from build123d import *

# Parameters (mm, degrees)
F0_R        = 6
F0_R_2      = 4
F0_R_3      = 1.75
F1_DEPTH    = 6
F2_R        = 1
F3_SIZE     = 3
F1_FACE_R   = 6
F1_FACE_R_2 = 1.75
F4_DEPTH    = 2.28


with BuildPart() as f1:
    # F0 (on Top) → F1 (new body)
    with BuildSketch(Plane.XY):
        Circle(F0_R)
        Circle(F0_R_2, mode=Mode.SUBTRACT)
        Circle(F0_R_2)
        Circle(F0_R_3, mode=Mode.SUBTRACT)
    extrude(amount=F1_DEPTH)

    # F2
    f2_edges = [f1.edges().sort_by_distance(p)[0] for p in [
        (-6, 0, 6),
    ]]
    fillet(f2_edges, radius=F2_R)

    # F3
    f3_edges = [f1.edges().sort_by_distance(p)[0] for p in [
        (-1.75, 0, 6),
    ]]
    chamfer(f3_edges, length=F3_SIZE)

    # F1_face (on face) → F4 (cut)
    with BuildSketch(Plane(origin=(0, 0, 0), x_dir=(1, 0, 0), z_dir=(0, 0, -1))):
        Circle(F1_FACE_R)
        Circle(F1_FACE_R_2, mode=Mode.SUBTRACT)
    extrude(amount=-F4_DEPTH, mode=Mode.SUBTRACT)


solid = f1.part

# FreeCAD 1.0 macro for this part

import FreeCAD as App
import Part
import Sketcher
from FreeCAD import Vector
Q = App.Units.Quantity


def edges_at(feature, points):
    """Names of the edges that pass closest to the given points."""
    edges = feature.Shape.Edges
    near = lambda p: min(range(len(edges)), key=lambda i: edges[i].distToShape(Part.Vertex(*p))[0])
    return sorted({f"Edge{near(p) + 1}" for p in points})

doc = App.newDocument("Part")
body = doc.addObject("PartDesign::Body", "Body")

sketch1 = body.newObject("Sketcher::SketchObject", "Sketch")
sketch1.AttachmentSupport = (doc.getObject("XY_Plane"), [""])
sketch1.MapMode = "FlatFace"
sketch1.addGeometry(Part.Circle(Vector(0, 0, 0), Vector(0, 0, 1), 6), False)
sketch1.addGeometry(Part.Circle(Vector(0, 0, 0), Vector(0, 0, 1), 1.8), False)
sketch1.addConstraint(Sketcher.Constraint("Coincident", 0, 3, -1, 1))
sketch1.addConstraint(Sketcher.Constraint("Coincident", 1, 3, -1, 1))
sketch1.addConstraint(Sketcher.Constraint("Diameter", 0, Q("12 mm")))
sketch1.addConstraint(Sketcher.Constraint("Diameter", 1, Q("3.5 mm")))
pad1 = body.newObject("PartDesign::Pad", "Pad")
pad1.Profile = sketch1
pad1.Length = 6
doc.recompute()

fillet = body.newObject("PartDesign::Fillet", "Fillet")
fillet.Base = (pad1, edges_at(pad1, [(-6, 0, 6)]))
fillet.Radius = 1
doc.recompute()

chamfer = body.newObject("PartDesign::Chamfer", "Chamfer")
chamfer.Base = (fillet, edges_at(fillet, [(-1.75, 0, 6)]))
chamfer.Size = 3

sketch2 = body.newObject("Sketcher::SketchObject", "Sketch001")
sketch2.AttachmentSupport = (doc.getObject("XY_Plane"), [""])
sketch2.MapMode = "FlatFace"
sketch2.addGeometry(Part.Circle(Vector(0, 0, 0), Vector(0, 0, 1), 6), False)
sketch2.addGeometry(Part.Circle(Vector(0, 0, 0), Vector(0, 0, 1), 1.8), False)
sketch2.addConstraint(Sketcher.Constraint("Coincident", 0, 3, -1, 1))
sketch2.addConstraint(Sketcher.Constraint("Coincident", 1, 3, -1, 1))
sketch2.addConstraint(Sketcher.Constraint("Diameter", 0, Q("12 mm")))
sketch2.addConstraint(Sketcher.Constraint("Diameter", 1, Q("3.5 mm")))
pocket1 = body.newObject("PartDesign::Pocket", "Pocket")
pocket1.Profile = sketch2
pocket1.Length = 2.28
pocket1.Reversed = True

doc.recompute()
